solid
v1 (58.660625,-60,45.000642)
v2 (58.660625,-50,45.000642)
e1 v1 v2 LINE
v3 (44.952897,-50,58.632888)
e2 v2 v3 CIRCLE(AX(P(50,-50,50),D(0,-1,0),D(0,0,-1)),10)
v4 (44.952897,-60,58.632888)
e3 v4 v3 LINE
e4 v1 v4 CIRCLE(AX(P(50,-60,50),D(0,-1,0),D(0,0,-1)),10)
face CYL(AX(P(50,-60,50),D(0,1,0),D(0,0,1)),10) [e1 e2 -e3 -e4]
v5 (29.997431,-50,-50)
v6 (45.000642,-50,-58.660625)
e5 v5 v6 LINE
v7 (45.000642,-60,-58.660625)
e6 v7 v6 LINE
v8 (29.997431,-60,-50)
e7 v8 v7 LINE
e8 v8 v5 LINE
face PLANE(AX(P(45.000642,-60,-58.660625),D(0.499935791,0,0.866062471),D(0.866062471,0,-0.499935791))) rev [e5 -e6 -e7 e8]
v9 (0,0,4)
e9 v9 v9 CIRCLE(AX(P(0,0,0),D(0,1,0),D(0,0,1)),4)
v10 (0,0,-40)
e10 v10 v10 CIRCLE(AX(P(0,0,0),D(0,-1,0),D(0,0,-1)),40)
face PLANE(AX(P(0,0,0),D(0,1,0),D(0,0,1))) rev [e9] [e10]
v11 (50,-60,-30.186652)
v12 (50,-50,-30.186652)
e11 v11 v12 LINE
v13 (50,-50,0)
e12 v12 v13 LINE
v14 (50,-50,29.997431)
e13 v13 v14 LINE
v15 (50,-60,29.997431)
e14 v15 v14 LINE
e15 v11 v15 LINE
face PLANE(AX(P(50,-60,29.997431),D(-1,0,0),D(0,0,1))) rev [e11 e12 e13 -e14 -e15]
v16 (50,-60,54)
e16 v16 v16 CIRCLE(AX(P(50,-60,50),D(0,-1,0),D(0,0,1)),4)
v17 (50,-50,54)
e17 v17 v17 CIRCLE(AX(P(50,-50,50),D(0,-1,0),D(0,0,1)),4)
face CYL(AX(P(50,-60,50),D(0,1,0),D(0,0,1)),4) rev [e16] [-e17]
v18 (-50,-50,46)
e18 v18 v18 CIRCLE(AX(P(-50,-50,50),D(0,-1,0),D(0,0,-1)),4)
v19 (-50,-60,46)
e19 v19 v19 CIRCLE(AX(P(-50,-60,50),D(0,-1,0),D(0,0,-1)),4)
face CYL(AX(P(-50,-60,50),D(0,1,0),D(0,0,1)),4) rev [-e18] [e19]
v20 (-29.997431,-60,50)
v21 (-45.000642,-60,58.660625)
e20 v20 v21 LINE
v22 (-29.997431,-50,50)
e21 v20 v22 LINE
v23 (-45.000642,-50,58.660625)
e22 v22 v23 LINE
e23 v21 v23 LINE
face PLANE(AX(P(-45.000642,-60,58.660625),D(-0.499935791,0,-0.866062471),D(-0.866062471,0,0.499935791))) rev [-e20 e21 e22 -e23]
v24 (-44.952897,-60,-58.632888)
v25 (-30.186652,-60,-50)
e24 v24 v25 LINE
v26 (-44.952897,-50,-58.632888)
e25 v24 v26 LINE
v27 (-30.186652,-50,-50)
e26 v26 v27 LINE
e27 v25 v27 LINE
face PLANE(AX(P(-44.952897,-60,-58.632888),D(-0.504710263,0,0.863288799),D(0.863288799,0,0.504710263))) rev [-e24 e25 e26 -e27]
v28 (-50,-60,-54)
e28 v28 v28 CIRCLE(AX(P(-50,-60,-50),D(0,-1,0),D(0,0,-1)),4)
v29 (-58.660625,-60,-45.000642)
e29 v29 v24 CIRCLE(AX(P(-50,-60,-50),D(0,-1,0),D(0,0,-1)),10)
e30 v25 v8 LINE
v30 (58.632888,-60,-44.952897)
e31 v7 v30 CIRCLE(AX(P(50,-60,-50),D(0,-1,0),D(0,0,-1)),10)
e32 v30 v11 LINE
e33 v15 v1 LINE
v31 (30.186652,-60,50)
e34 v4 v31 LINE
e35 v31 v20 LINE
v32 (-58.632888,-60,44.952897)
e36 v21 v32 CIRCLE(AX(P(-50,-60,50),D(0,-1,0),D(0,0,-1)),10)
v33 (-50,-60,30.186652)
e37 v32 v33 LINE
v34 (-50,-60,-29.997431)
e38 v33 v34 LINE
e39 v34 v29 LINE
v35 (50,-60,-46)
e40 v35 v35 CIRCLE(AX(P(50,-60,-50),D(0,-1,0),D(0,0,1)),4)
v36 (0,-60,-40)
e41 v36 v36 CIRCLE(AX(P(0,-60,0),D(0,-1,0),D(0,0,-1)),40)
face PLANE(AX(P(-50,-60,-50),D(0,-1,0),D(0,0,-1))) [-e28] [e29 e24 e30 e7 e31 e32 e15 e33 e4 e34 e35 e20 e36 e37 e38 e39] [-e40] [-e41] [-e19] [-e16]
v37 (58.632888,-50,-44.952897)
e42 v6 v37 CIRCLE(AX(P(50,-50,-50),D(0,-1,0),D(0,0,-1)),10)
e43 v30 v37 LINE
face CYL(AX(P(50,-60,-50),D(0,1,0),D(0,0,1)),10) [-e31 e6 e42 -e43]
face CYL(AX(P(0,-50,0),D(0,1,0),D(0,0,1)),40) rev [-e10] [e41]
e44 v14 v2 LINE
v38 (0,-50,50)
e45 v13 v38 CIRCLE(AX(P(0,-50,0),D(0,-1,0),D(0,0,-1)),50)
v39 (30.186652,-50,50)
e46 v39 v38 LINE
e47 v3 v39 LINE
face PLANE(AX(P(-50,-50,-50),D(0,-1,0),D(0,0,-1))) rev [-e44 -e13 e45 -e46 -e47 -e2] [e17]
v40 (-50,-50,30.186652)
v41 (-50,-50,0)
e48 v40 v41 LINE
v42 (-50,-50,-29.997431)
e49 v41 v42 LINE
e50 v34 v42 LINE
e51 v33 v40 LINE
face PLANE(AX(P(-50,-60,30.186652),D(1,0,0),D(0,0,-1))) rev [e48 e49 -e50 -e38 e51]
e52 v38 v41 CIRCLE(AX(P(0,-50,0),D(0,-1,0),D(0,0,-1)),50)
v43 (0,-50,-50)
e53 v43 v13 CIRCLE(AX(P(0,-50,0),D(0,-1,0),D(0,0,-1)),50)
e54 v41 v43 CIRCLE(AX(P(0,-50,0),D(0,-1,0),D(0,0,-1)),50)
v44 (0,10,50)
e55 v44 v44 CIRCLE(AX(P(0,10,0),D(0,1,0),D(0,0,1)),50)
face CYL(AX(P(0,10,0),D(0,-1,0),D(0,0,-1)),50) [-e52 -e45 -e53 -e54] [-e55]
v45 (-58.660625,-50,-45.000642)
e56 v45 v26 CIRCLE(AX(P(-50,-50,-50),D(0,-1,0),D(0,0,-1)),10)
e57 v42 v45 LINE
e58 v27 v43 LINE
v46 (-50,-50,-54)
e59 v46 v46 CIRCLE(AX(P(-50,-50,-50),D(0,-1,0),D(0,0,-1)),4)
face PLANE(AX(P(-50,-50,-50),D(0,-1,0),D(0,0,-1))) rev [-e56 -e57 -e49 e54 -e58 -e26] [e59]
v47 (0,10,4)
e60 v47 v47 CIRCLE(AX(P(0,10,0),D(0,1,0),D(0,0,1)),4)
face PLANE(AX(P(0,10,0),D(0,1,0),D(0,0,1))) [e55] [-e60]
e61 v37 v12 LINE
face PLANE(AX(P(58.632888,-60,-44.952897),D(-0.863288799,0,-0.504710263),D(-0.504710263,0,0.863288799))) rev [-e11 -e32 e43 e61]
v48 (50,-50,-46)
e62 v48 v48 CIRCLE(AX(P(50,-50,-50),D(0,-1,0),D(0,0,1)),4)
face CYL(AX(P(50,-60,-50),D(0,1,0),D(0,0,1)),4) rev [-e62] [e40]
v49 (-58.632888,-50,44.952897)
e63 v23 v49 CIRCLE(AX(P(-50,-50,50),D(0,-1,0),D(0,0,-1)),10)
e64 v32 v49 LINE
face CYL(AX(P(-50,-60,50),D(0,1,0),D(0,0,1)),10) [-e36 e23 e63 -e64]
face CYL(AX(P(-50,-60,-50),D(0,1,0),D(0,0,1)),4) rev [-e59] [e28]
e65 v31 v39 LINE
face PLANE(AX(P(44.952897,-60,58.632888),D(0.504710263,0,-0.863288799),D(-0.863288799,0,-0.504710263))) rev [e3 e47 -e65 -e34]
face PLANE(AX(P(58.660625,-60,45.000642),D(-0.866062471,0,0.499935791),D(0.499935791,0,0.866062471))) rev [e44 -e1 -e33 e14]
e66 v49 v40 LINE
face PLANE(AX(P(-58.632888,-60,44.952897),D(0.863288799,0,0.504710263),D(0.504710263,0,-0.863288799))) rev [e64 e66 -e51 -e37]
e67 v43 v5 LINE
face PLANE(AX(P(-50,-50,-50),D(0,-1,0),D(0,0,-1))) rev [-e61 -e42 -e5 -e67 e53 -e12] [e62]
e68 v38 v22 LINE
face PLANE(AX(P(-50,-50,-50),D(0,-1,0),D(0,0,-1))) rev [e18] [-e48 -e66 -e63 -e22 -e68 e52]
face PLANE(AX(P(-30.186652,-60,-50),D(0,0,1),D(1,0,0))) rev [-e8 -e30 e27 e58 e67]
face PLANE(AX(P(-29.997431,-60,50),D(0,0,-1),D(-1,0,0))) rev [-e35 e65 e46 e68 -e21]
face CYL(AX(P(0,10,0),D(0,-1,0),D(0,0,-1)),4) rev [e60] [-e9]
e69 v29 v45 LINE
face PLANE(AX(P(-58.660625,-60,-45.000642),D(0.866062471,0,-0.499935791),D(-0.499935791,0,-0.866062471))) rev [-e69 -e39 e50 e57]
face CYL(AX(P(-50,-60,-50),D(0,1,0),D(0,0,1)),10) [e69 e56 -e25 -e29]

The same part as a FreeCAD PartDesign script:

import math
import FreeCAD as App
import Part
import Sketcher

doc = App.newDocument("Part")
body = doc.addObject("PartDesign::Body", "Body")

sketch1 = doc.addObject("Sketcher::SketchObject", "Sketch")
body.addObject(sketch1)
sketch1.AttachmentSupport = (doc.XZ_Plane, [""])
sketch1.MapMode = "FlatFace"
sketch1.addGeometry([
    Part.Circle(App.Vector(0, 0, 0), App.Vector(0, 0, 1), 50),
    Part.Circle(App.Vector(0, 0, 0), App.Vector(0, 0, 1), 4),
], False)
sketch1.addConstraint([
    Sketcher.Constraint("Coincident", 0, 3, -1, 1),
    Sketcher.Constraint("Coincident", 1, 3, -1, 1),
    Sketcher.Constraint("Diameter", 0, 100.0),
    Sketcher.Constraint("Diameter", 1, 8.0),
])
pad1 = doc.addObject("PartDesign::Pad", "Pad")
body.addObject(pad1)
pad1.Profile = sketch1
pad1.Length = 10
pad1.Reversed = True

sketch2 = doc.addObject("Sketcher::SketchObject", "Sketch001")
body.addObject(sketch2)
sketch2.AttachmentSupport = (doc.XZ_Plane, [""])
sketch2.MapMode = "FlatFace"
sketch2.AttachmentOffset = App.Placement(App.Vector(0, 0, 50), App.Rotation())
sketch2.addGeometry([
    Part.Circle(App.Vector(0, 0, 0), App.Vector(0, 0, 1), 50),
    Part.Circle(App.Vector(0, 0, 0), App.Vector(0, 0, 1), 40),
], False)
sketch2.addConstraint([
    Sketcher.Constraint("Coincident", 0, 3, -1, 1),
    Sketcher.Constraint("Coincident", 1, 3, -1, 1),
    Sketcher.Constraint("Diameter", 0, 100.0),
    Sketcher.Constraint("Diameter", 1, 80.0),
])
pad2 = doc.addObject("PartDesign::Pad", "Pad001")
body.addObject(pad2)
pad2.Profile = sketch2
pad2.Length = 50
pad2.Reversed = True

sketch3 = doc.addObject("Sketcher::SketchObject", "Sketch002")
body.addObject(sketch3)
sketch3.AttachmentSupport = (doc.XZ_Plane, [""])
sketch3.MapMode = "FlatFace"
sketch3.AttachmentOffset = App.Placement(App.Vector(0, 0, 60), App.Rotation())
sketch3.addGeometry([
    Part.LineSegment(App.Vector(-30.2, -50, 0), App.Vector(30, -50, 0)),
    Part.LineSegment(App.Vector(30, -50, 0), App.Vector(45, -58.7, 0)),
    Part.ArcOfCircle(Part.Circle(App.Vector(50, -50, 0), App.Vector(0, 0, 1), 10), math.radians(-120), math.radians(30)),
    Part.LineSegment(App.Vector(58.6, -45, 0), App.Vector(50, -30.2, 0)),
    Part.LineSegment(App.Vector(50, -30.2, 0), App.Vector(50, 30, 0)),
    Part.LineSegment(App.Vector(50, 30, 0), App.Vector(58.7, 45, 0)),
    Part.ArcOfCircle(Part.Circle(App.Vector(50, 50, 0), App.Vector(0, 0, 1), 10), math.radians(-30), math.radians(120)),
    Part.LineSegment(App.Vector(45, 58.6, 0), App.Vector(30.2, 50, 0)),
    Part.LineSegment(App.Vector(30.2, 50, 0), App.Vector(-30, 50, 0)),
    Part.LineSegment(App.Vector(-30, 50, 0), App.Vector(-45, 58.7, 0)),
    Part.ArcOfCircle(Part.Circle(App.Vector(-50, 50, 0), App.Vector(0, 0, 1), 10), math.radians(60), math.radians(210)),
    Part.LineSegment(App.Vector(-58.6, 45, 0), App.Vector(-50, 30.2, 0)),
    Part.LineSegment(App.Vector(-50, 30.2, 0), App.Vector(-50, -30, 0)),
    Part.LineSegment(App.Vector(-50, -30, 0), App.Vector(-58.7, -45, 0)),
    Part.ArcOfCircle(Part.Circle(App.Vector(-50, -50, 0), App.Vector(0, 0, 1), 10), math.radians(150), math.radians(300)),
    Part.LineSegment(App.Vector(-45, -58.6, 0), App.Vector(-30.2, -50, 0)),
    Part.Circle(App.Vector(-50, -50, 0), App.Vector(0, 0, 1), 4),
    Part.Circle(App.Vector(50, -50, 0), App.Vector(0, 0, 1), 4),
    Part.Circle(App.Vector(-50, 50, 0), App.Vector(0, 0, 1), 4),
    Part.Circle(App.Vector(0, 0, 0), App.Vector(0, 0, 1), 40),
    Part.Circle(App.Vector(50, 50, 0), App.Vector(0, 0, 1), 4),
], False)
sketch3.addConstraint([
    Sketcher.Constraint("Coincident", 0, 2, 1, 1),
    Sketcher.Constraint("Tangent", 1, 2, 2, 1),
    Sketcher.Constraint("Tangent", 2, 2, 3, 1),
    Sketcher.Constraint("Coincident", 3, 2, 4, 1),
    Sketcher.Constraint("Coincident", 4, 2, 5, 1),
    Sketcher.Constraint("Tangent", 5, 2, 6, 1),
    Sketcher.Constraint("Tangent", 6, 2, 7, 1),
    Sketcher.Constraint("Coincident", 7, 2, 8, 1),
    Sketcher.Constraint("Coincident", 8, 2, 9, 1),
    Sketcher.Constraint("Tangent", 9, 2, 10, 1),
    Sketcher.Constraint("Tangent", 10, 2, 11, 1),
    Sketcher.Constraint("Coincident", 11, 2, 12, 1),
    Sketcher.Constraint("Coincident", 12, 2, 13, 1),
    Sketcher.Constraint("Tangent", 13, 2, 14, 1),
    Sketcher.Constraint("Tangent", 14, 2, 15, 1),
    Sketcher.Constraint("Coincident", 15, 2, 0, 1),
    Sketcher.Constraint("Horizontal", 0),
    Sketcher.Constraint("Vertical", 4),
    Sketcher.Constraint("Horizontal", 8),
    Sketcher.Constraint("Vertical", 12),
    Sketcher.Constraint("Coincident", 19, 3, -1, 1),
    Sketcher.Constraint("Coincident", 16, 3, 14, 3),
    Sketcher.Constraint("Coincident", 17, 3, 2, 3),
    Sketcher.Constraint("Coincident", 18, 3, 10, 3),
    Sketcher.Constraint("Coincident", 20, 3, 6, 3),
    Sketcher.Constraint("Equal", 2, 6),
    Sketcher.Constraint("Equal", 6, 10),
    Sketcher.Constraint("Equal", 10, 14),
    Sketcher.Constraint("Equal", 16, 17),
    Sketcher.Constraint("Equal", 17, 18),
    Sketcher.Constraint("Equal", 18, 20),
    Sketcher.Constraint("Symmetric", 2, 3, 10, 3, -1, 1),
    Sketcher.Constraint("Symmetric", 6, 3, 14, 3, -1, 1),
    Sketcher.Constraint("Symmetric", 0, 2, 8, 2, -1, 1),
    Sketcher.Constraint("Symmetric", 3, 2, 11, 2, -1, 1),
    Sketcher.Constraint("Symmetric", 6, 3, 10, 3, -2),
    Sketcher.Constraint("Perpendicular", 1, 5),
    Sketcher.Constraint("Perpendicular", 3, 7),
    Sketcher.Constraint("Perpendicular", 9, 13),
    Sketcher.Constraint("Perpendicular", 11, 15),
    Sketcher.Constraint("Horizontal", 17, 3, 0, 2),
    Sketcher.Constraint("Vertical", 20, 3, 3, 2),
    Sketcher.Constraint("Equal", 8, 4),
    Sketcher.Constraint("Diameter", 16, 8.0),
    Sketcher.Constraint("Diameter", 19, 80.0),
    Sketcher.Constraint("Radius", 2, 10.0),
    Sketcher.Constraint("DistanceX", -1, 1, 2, 3, 50.0),
    Sketcher.Constraint("Distance", 3, 17.104641),
    Sketcher.Constraint("DistanceX", 0, 1, 0, 2, 60.184083),
])
pad3 = doc.addObject("PartDesign::Pad", "Pad002")
body.addObject(pad3)
pad3.Profile = sketch3
pad3.Length = 10
pad3.Reversed = True

doc.recompute()
